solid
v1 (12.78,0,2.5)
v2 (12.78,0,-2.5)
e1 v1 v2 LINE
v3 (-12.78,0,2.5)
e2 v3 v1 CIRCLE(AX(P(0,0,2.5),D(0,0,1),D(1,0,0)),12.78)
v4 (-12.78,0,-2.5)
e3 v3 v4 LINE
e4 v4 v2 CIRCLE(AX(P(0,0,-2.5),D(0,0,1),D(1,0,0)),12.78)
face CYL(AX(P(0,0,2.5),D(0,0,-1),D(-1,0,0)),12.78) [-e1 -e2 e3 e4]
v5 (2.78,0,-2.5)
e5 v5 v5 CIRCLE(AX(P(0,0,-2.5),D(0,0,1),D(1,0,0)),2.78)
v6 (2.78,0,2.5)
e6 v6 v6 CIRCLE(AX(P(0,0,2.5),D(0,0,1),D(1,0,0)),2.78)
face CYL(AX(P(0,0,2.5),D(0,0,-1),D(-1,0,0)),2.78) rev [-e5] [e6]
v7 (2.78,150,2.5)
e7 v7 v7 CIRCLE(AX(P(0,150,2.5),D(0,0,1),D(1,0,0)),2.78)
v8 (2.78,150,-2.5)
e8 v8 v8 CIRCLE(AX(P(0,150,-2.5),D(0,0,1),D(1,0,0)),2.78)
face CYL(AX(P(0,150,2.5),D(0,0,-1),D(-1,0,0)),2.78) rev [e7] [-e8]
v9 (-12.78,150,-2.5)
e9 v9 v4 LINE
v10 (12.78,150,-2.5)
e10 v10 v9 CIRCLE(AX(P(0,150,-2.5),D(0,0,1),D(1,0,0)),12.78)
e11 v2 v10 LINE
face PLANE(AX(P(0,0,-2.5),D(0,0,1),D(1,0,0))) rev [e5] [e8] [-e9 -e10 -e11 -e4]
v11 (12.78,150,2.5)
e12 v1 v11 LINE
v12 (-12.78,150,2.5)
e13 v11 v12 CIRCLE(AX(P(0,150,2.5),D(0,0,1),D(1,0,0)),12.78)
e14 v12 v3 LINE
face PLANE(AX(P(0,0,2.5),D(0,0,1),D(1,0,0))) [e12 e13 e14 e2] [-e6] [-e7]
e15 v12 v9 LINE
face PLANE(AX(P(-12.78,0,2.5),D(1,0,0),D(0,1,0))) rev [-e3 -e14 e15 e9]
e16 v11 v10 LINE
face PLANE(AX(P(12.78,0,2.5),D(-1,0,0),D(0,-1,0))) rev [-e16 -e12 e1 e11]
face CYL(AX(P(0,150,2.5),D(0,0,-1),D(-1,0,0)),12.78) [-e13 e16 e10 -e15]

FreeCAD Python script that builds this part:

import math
import FreeCAD as App
import Part
import Sketcher
from FreeCAD import Vector
Q = App.Units.Quantity

doc = App.newDocument("Part")
body = doc.addObject("PartDesign::Body", "Body")

sketch1 = body.newObject("Sketcher::SketchObject", "Sketch")
sketch1.AttachmentSupport = (doc.getObject("XY_Plane"), [""])
sketch1.MapMode = "FlatFace"
sketch1.addGeometry(Part.LineSegment(Vector(-12.8, 150, 0), Vector(-12.8, 0, 0)), False)
sketch1.addGeometry(Part.ArcOfCircle(Part.Circle(Vector(0, 0, 0), Vector(0, 0, 1), 12.8), math.radians(180), math.radians(360)), False)
sketch1.addGeometry(Part.LineSegment(Vector(12.8, 0, 0), Vector(12.8, 150, 0)), False)
sketch1.addGeometry(Part.ArcOfCircle(Part.Circle(Vector(0, 150, 0), Vector(0, 0, 1), 12.8), math.radians(0), math.radians(180)), False)
sketch1.addGeometry(Part.Circle(Vector(0, 0, 0), Vector(0, 0, 1), 2.8), False)
sketch1.addGeometry(Part.Circle(Vector(0, 150, 0), Vector(0, 0, 1), 2.8), False)
sketch1.addConstraint(Sketcher.Constraint("Tangent", 0, 2, 1, 1))
sketch1.addConstraint(Sketcher.Constraint("Tangent", 1, 2, 2, 1))
sketch1.addConstraint(Sketcher.Constraint("Tangent", 2, 2, 3, 1))
sketch1.addConstraint(Sketcher.Constraint("Tangent", 3, 2, 0, 1))
sketch1.addConstraint(Sketcher.Constraint("Vertical", 0))
sketch1.addConstraint(Sketcher.Constraint("Vertical", 2))
sketch1.addConstraint(Sketcher.Constraint("Coincident", 1, 3, -1, 1))
sketch1.addConstraint(Sketcher.Constraint("Coincident", 4, 3, -1, 1))
sketch1.addConstraint(Sketcher.Constraint("Coincident", 5, 3, 3, 3))
sketch1.addConstraint(Sketcher.Constraint("Equal", 4, 5))
sketch1.addConstraint(Sketcher.Constraint("Diameter", 4, Q("5.56 mm")))
sketch1.addConstraint(Sketcher.Constraint("DistanceY", 0, 2, 0, 1, Q("150 mm")))
sketch1.addConstraint(Sketcher.Constraint("Radius", 1, Q("12.78 mm")))
pad1 = body.newObject("PartDesign::Pad", "Pad")
pad1.Profile = sketch1
pad1.Length = 5
pad1.Midplane = True

doc.recompute()
